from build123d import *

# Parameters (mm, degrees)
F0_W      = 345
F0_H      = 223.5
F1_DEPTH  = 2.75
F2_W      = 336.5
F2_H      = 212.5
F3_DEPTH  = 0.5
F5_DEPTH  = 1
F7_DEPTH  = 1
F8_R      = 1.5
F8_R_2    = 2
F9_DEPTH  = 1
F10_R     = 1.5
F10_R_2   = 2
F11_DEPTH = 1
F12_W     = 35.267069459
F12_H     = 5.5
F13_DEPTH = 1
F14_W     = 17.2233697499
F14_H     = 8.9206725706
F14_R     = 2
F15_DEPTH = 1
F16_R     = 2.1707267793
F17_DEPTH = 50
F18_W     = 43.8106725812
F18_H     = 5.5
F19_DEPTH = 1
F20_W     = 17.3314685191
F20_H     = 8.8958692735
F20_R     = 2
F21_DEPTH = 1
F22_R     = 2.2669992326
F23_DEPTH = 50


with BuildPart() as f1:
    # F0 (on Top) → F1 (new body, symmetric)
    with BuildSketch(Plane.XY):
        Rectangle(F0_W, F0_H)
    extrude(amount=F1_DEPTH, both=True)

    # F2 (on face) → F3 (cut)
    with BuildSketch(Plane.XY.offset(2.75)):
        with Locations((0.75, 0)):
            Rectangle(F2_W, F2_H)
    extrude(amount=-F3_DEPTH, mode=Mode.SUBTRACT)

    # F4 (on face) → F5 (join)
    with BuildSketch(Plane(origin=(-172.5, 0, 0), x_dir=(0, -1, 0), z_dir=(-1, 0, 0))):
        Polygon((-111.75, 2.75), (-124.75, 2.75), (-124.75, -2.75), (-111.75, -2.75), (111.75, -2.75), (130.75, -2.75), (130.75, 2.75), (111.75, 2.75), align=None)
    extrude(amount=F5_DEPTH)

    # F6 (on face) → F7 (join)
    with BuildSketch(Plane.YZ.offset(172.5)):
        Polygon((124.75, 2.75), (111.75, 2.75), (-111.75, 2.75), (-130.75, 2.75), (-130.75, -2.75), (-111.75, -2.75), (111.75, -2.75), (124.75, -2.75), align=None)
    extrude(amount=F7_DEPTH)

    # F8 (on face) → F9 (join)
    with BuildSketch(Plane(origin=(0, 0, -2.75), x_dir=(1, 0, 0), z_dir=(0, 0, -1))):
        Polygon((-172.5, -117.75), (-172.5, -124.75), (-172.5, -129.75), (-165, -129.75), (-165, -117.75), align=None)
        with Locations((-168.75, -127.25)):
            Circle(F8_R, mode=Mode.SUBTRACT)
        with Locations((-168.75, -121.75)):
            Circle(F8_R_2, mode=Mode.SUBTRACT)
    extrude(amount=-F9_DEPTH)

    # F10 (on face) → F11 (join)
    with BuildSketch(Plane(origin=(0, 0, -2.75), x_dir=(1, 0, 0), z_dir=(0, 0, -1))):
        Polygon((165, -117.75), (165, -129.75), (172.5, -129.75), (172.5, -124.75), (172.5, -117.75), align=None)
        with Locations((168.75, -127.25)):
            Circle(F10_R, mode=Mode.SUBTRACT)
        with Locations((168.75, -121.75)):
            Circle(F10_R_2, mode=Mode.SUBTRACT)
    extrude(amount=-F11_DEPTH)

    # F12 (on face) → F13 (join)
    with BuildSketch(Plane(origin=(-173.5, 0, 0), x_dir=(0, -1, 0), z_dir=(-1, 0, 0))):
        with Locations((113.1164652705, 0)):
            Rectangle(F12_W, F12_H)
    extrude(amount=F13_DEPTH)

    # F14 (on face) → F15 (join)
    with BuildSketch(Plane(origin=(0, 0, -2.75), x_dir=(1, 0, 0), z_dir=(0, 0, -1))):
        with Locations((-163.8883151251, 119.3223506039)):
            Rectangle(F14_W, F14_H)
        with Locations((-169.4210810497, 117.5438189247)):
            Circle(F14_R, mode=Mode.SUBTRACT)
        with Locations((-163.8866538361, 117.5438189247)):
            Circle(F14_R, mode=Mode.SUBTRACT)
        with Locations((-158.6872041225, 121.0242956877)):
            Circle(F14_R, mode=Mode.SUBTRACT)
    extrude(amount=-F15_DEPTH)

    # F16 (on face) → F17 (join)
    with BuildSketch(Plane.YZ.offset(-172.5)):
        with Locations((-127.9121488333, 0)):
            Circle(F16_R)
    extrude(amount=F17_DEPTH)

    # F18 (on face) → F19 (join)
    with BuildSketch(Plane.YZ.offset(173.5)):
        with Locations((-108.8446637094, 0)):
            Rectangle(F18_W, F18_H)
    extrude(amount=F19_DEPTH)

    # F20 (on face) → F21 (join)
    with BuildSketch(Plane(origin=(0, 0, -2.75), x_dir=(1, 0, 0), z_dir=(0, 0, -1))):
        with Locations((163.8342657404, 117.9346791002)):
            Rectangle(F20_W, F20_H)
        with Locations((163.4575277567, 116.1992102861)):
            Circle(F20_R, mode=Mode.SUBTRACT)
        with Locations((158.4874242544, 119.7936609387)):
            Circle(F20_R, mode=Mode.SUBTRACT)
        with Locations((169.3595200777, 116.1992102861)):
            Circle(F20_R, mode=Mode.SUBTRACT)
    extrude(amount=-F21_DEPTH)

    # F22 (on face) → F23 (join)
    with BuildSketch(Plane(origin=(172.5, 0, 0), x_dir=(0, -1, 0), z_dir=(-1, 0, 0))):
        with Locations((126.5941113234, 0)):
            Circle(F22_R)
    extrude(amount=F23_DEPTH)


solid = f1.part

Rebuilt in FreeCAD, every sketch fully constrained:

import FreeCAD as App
import Part
import Sketcher
Q = App.Units.Quantity


def add_polygon(sketch, points):
    """Adds a closed chain of lines whose ends are joined by coincident constraints."""
    first, n = sketch.GeometryCount, len(points)
    for a, b in zip(points, points[1:] + points[:1]):
        sketch.addGeometry(Part.LineSegment(App.Vector(*a, 0), App.Vector(*b, 0)), False)
    for i in range(n):
        sketch.addConstraint(Sketcher.Constraint("Coincident", first + i, 2, first + (i + 1) % n, 1))

doc = App.newDocument("Part")
body = doc.addObject("PartDesign::Body", "Body")

sketch1 = body.newObject("Sketcher::SketchObject", "Sketch")
sketch1.AttachmentSupport = (doc.getObject("XY_Plane"), [""])
sketch1.MapMode = "FlatFace"
add_polygon(sketch1, [(-172, 112), (-172, -112), (172, -112), (172, 112)])
sketch1.addConstraint(Sketcher.Constraint("Vertical", 0))
sketch1.addConstraint(Sketcher.Constraint("Horizontal", 1))
sketch1.addConstraint(Sketcher.Constraint("Vertical", 2))
sketch1.addConstraint(Sketcher.Constraint("Horizontal", 3))
sketch1.addConstraint(Sketcher.Constraint("Symmetric", 0, 2, 2, 2, -1, 1))
sketch1.addConstraint(Sketcher.Constraint("DistanceX", 1, 1, 1, 2, Q("345 mm")))
sketch1.addConstraint(Sketcher.Constraint("DistanceY", 0, 2, 0, 1, Q("223.5 mm")))
pad1 = body.newObject("PartDesign::Pad", "Pad")
pad1.Profile = sketch1
pad1.Length = 5.5
pad1.Midplane = True

sketch2 = body.newObject("Sketcher::SketchObject", "Sketch001")
sketch2.AttachmentSupport = (doc.getObject("XY_Plane"), [""])
sketch2.MapMode = "FlatFace"
sketch2.AttachmentOffset = App.Placement(App.Vector(0, 0, 2.75), App.Rotation())
add_polygon(sketch2, [(-168, 106), (-168, -106), (169, -106), (169, 106)])
sketch2.addConstraint(Sketcher.Constraint("Vertical", 0))
sketch2.addConstraint(Sketcher.Constraint("Horizontal", 1))
sketch2.addConstraint(Sketcher.Constraint("Vertical", 2))
sketch2.addConstraint(Sketcher.Constraint("Horizontal", 3))
sketch2.addConstraint(Sketcher.Constraint("DistanceX", 1, 1, 1, 2, Q("336.5 mm")))
sketch2.addConstraint(Sketcher.Constraint("DistanceY", 0, 2, 0, 1, Q("212.5 mm")))
sketch2.addConstraint(Sketcher.Constraint("DistanceX", -1, 1, 1, 2, Q("169 mm")))
sketch2.addConstraint(Sketcher.Constraint("DistanceY", 0, 2, -1, 1, Q("106.25 mm")))
pocket1 = body.newObject("PartDesign::Pocket", "Pocket")
pocket1.Profile = sketch2
pocket1.Length = 0.5

sketch3 = body.newObject("Sketcher::SketchObject", "Sketch002")
sketch3.AttachmentSupport = (doc.getObject("YZ_Plane"), [""])
sketch3.MapMode = "FlatFace"
sketch3.AttachmentOffset = App.Placement(App.Vector(0, 0, -172.5), App.Rotation())
add_polygon(sketch3, [(125, 3), (125, -3), (-131, -3), (-131, 3)])
sketch3.addConstraint(Sketcher.Constraint("Vertical", 0))
sketch3.addConstraint(Sketcher.Constraint("Horizontal", 1))
sketch3.addConstraint(Sketcher.Constraint("Vertical", 2))
sketch3.addConstraint(Sketcher.Constraint("Horizontal", 3))
sketch3.addConstraint(Sketcher.Constraint("DistanceX", 1, 2, 1, 1, Q("255.5 mm")))
sketch3.addConstraint(Sketcher.Constraint("DistanceY", 0, 2, 0, 1, Q("5.5 mm")))
sketch3.addConstraint(Sketcher.Constraint("DistanceX", -1, 1, 0, 2, Q("124.75 mm")))
sketch3.addConstraint(Sketcher.Constraint("DistanceY", 0, 2, -1, 1, Q("2.75 mm")))
pad2 = body.newObject("PartDesign::Pad", "Pad001")
pad2.Profile = sketch3
pad2.Length = 1
pad2.Reversed = True

sketch4 = body.newObject("Sketcher::SketchObject", "Sketch003")
sketch4.AttachmentSupport = (doc.getObject("YZ_Plane"), [""])
sketch4.MapMode = "FlatFace"
sketch4.AttachmentOffset = App.Placement(App.Vector(0, 0, 172.5), App.Rotation())
add_polygon(sketch4, [(125, 3), (-131, 3), (-131, -3), (125, -3)])
sketch4.addConstraint(Sketcher.Constraint("Horizontal", 0))
sketch4.addConstraint(Sketcher.Constraint("Vertical", 1))
sketch4.addConstraint(Sketcher.Constraint("Horizontal", 2))
sketch4.addConstraint(Sketcher.Constraint("Vertical", 3))
sketch4.addConstraint(Sketcher.Constraint("DistanceX", 0, 2, 0, 1, Q("255.5 mm")))
sketch4.addConstraint(Sketcher.Constraint("DistanceY", 1, 2, 1, 1, Q("5.5 mm")))
sketch4.addConstraint(Sketcher.Constraint("DistanceX", 0, 2, -1, 1, Q("130.75 mm")))
sketch4.addConstraint(Sketcher.Constraint("DistanceY", -1, 1, 0, 2, Q("2.75 mm")))
pad3 = body.newObject("PartDesign::Pad", "Pad002")
pad3.Profile = sketch4
pad3.Length = 1

sketch5 = body.newObject("Sketcher::SketchObject", "Sketch004")
sketch5.AttachmentSupport = (doc.getObject("XY_Plane"), [""])
sketch5.MapMode = "FlatFace"
sketch5.AttachmentOffset = App.Placement(App.Vector(0, 0, -2.75), App.Rotation())
add_polygon(sketch5, [(-172.5, 117.8), (-172.5, 129.8), (-165, 129.8), (-165, 117.8)])
sketch5.addGeometry(Part.Circle(App.Vector(-168.8, 127.2, 0), App.Vector(0, 0, 1), 1.5), False)
sketch5.addGeometry(Part.Circle(App.Vector(-168.8, 121.8, 0), App.Vector(0, 0, 1), 2), False)
sketch5.addConstraint(Sketcher.Constraint("Vertical", 0))
sketch5.addConstraint(Sketcher.Constraint("Horizontal", 1))
sketch5.addConstraint(Sketcher.Constraint("Vertical", 2))
sketch5.addConstraint(Sketcher.Constraint("Horizontal", 3))
sketch5.addConstraint(Sketcher.Constraint("Vertical", 4, 3, 5, 3))
sketch5.addConstraint(Sketcher.Constraint("Diameter", 4, Q("3 mm")))
sketch5.addConstraint(Sketcher.Constraint("Diameter", 5, Q("4 mm")))
sketch5.addConstraint(Sketcher.Constraint("DistanceY", 0, 1, 0, 2, Q("12 mm")))
sketch5.addConstraint(Sketcher.Constraint("DistanceX", 1, 1, 1, 2, Q("7.5 mm")))
sketch5.addConstraint(Sketcher.Constraint("DistanceX", 1, 2, -1, 1, Q("165 mm")))
sketch5.addConstraint(Sketcher.Constraint("DistanceY", 5, 3, 0, 2, Q("8 mm")))
sketch5.addConstraint(Sketcher.Constraint("DistanceY", 5, 3, 4, 3, Q("5.5 mm")))
sketch5.addConstraint(Sketcher.Constraint("DistanceX", 4, 3, -1, 1, Q("168.75 mm")))
sketch5.addConstraint(Sketcher.Constraint("DistanceY", -1, 1, 4, 3, Q("127.25 mm")))
pad4 = body.newObject("PartDesign::Pad", "Pad003")
pad4.Profile = sketch5
pad4.Length = 1

sketch6 = body.newObject("Sketcher::SketchObject", "Sketch005")
sketch6.AttachmentSupport = (doc.getObject("XY_Plane"), [""])
sketch6.MapMode = "FlatFace"
sketch6.AttachmentOffset = App.Placement(App.Vector(0, 0, -2.75), App.Rotation())
add_polygon(sketch6, [(165, 117.8), (165, 129.8), (172.5, 129.8), (172.5, 117.8)])
sketch6.addGeometry(Part.Circle(App.Vector(168.8, 127.2, 0), App.Vector(0, 0, 1), 1.5), False)
sketch6.addGeometry(Part.Circle(App.Vector(168.8, 121.8, 0), App.Vector(0, 0, 1), 2), False)
sketch6.addConstraint(Sketcher.Constraint("Vertical", 0))
sketch6.addConstraint(Sketcher.Constraint("Horizontal", 1))
sketch6.addConstraint(Sketcher.Constraint("Vertical", 2))
sketch6.addConstraint(Sketcher.Constraint("Horizontal", 3))
sketch6.addConstraint(Sketcher.Constraint("Vertical", 4, 3, 5, 3))
sketch6.addConstraint(Sketcher.Constraint("Diameter", 4, Q("3 mm")))
sketch6.addConstraint(Sketcher.Constraint("Diameter", 5, Q("4 mm")))
sketch6.addConstraint(Sketcher.Constraint("DistanceY", 0, 1, 0, 2, Q("12 mm")))
sketch6.addConstraint(Sketcher.Constraint("DistanceX", 1, 1, 1, 2, Q("7.5 mm")))
sketch6.addConstraint(Sketcher.Constraint("DistanceX", -1, 1, 0, 2, Q("165 mm")))
sketch6.addConstraint(Sketcher.Constraint("DistanceY", 5, 3, 0, 2, Q("8 mm")))
sketch6.addConstraint(Sketcher.Constraint("DistanceY", 5, 3, 4, 3, Q("5.5 mm")))
sketch6.addConstraint(Sketcher.Constraint("DistanceX", -1, 1, 4, 3, Q("168.75 mm")))
sketch6.addConstraint(Sketcher.Constraint("DistanceY", -1, 1, 4, 3, Q("127.25 mm")))
pad5 = body.newObject("PartDesign::Pad", "Pad004")
pad5.Profile = sketch6
pad5.Length = 1

sketch7 = body.newObject("Sketcher::SketchObject", "Sketch006")
sketch7.AttachmentSupport = (doc.getObject("YZ_Plane"), [""])
sketch7.MapMode = "FlatFace"
sketch7.AttachmentOffset = App.Placement(App.Vector(0, 0, -173.5), App.Rotation())
add_polygon(sketch7, [(-95, 3), (-95, -3), (-131, -3), (-131, 3)])
sketch7.addConstraint(Sketcher.Constraint("Vertical", 0))
sketch7.addConstraint(Sketcher.Constraint("Horizontal", 1))
sketch7.addConstraint(Sketcher.Constraint("Vertical", 2))
sketch7.addConstraint(Sketcher.Constraint("Horizontal", 3))
sketch7.addConstraint(Sketcher.Constraint("DistanceY", 0, 2, 0, 1, Q("5.5 mm")))
sketch7.addConstraint(Sketcher.Constraint("DistanceY", 0, 2, -1, 1, Q("2.75 mm")))
sketch7.addConstraint(Sketcher.Constraint("DistanceX", 1, 2, -1, 1, Q("130.75 mm")))
sketch7.addConstraint(Sketcher.Constraint("DistanceX", 1, 2, 1, 1, Q("35.267069 mm")))
pad6 = body.newObject("PartDesign::Pad", "Pad005")
pad6.Profile = sketch7
pad6.Length = 1
pad6.Reversed = True

sketch8 = body.newObject("Sketcher::SketchObject", "Sketch007")
sketch8.AttachmentSupport = (doc.getObject("XY_Plane"), [""])
sketch8.MapMode = "FlatFace"
sketch8.AttachmentOffset = App.Placement(App.Vector(0, 0, -2.75), App.Rotation())
add_polygon(sketch8, [(-172.5, -123.8), (-172.5, -114.9), (-155.3, -114.9), (-155.3, -123.8)])
sketch8.addGeometry(Part.Circle(App.Vector(-169.4, -117.5, 0), App.Vector(0, 0, 1), 2), False)
sketch8.addGeometry(Part.Circle(App.Vector(-163.9, -117.5, 0), App.Vector(0, 0, 1), 2), False)
sketch8.addGeometry(Part.Circle(App.Vector(-158.7, -121, 0), App.Vector(0, 0, 1), 2), False)
sketch8.addConstraint(Sketcher.Constraint("Vertical", 0))
sketch8.addConstraint(Sketcher.Constraint("Horizontal", 1))
sketch8.addConstraint(Sketcher.Constraint("Vertical", 2))
sketch8.addConstraint(Sketcher.Constraint("Horizontal", 3))
sketch8.addConstraint(Sketcher.Constraint("Equal", 4, 5))
sketch8.addConstraint(Sketcher.Constraint("Equal", 5, 6))
sketch8.addConstraint(Sketcher.Constraint("Horizontal", 4, 3, 5, 3))
sketch8.addConstraint(Sketcher.Constraint("Diameter", 4, Q("4 mm")))
sketch8.addConstraint(Sketcher.Constraint("DistanceX", 0, 2, -1, 1, Q("172.5 mm")))
sketch8.addConstraint(Sketcher.Constraint("DistanceX", 1, 1, 1, 2, Q("17.22337 mm")))
sketch8.addConstraint(Sketcher.Constraint("DistanceY", 0, 1, 0, 2, Q("8.920673 mm")))
sketch8.addConstraint(Sketcher.Constraint("DistanceX", 4, 3, -1, 1, Q("169.421081 mm")))
sketch8.addConstraint(Sketcher.Constraint("DistanceY", 4, 3, -1, 1, Q("117.543819 mm")))
sketch8.addConstraint(Sketcher.Constraint("DistanceX", 5, 3, 6, 3, Q("5.19945 mm")))
sketch8.addConstraint(Sketcher.Constraint("DistanceY", 6, 3, 0, 2, Q("6.162281 mm")))
sketch8.addConstraint(Sketcher.Constraint("DistanceX", 5, 3, -1, 1, Q("163.886654 mm")))
sketch8.addConstraint(Sketcher.Constraint("DistanceY", 6, 3, -1, 1, Q("121.024296 mm")))
pad7 = body.newObject("PartDesign::Pad", "Pad006")
pad7.Profile = sketch8
pad7.Length = 1

sketch9 = body.newObject("Sketcher::SketchObject", "Sketch008")
sketch9.AttachmentSupport = (doc.getObject("YZ_Plane"), [""])
sketch9.MapMode = "FlatFace"
sketch9.AttachmentOffset = App.Placement(App.Vector(0, 0, -172.5), App.Rotation())
sketch9.addGeometry(Part.Circle(App.Vector(-127.9, 0, 0), App.Vector(0, 0, 1), 2.2), False)
sketch9.addConstraint(Sketcher.Constraint("PointOnObject", 0, 3, -1))
sketch9.addConstraint(Sketcher.Constraint("Diameter", 0, Q("4.341454 mm")))
sketch9.addConstraint(Sketcher.Constraint("DistanceX", 0, 3, -1, 1, Q("127.912149 mm")))
pad8 = body.newObject("PartDesign::Pad", "Pad007")
pad8.Profile = sketch9
pad8.Length = 50

sketch10 = body.newObject("Sketcher::SketchObject", "Sketch009")
sketch10.AttachmentSupport = (doc.getObject("YZ_Plane"), [""])
sketch10.MapMode = "FlatFace"
sketch10.AttachmentOffset = App.Placement(App.Vector(0, 0, 173.5), App.Rotation())
add_polygon(sketch10, [(-131, 3), (-131, -3), (-87, -3), (-87, 3)])
sketch10.addConstraint(Sketcher.Constraint("Vertical", 0))
sketch10.addConstraint(Sketcher.Constraint("Horizontal", 1))
sketch10.addConstraint(Sketcher.Constraint("Vertical", 2))
sketch10.addConstraint(Sketcher.Constraint("Horizontal", 3))
sketch10.addConstraint(Sketcher.Constraint("DistanceY", 0, 2, 0, 1, Q("5.5 mm")))
sketch10.addConstraint(Sketcher.Constraint("DistanceX", 0, 2, -1, 1, Q("130.75 mm")))
sketch10.addConstraint(Sketcher.Constraint("DistanceY", 0, 2, -1, 1, Q("2.75 mm")))
sketch10.addConstraint(Sketcher.Constraint("DistanceX", 1, 1, 1, 2, Q("43.810673 mm")))
pad9 = body.newObject("PartDesign::Pad", "Pad008")
pad9.Profile = sketch10
pad9.Length = 1

sketch11 = body.newObject("Sketcher::SketchObject", "Sketch010")
sketch11.AttachmentSupport = (doc.getObject("XY_Plane"), [""])
sketch11.MapMode = "FlatFace"
sketch11.AttachmentOffset = App.Placement(App.Vector(0, 0, -2.75), App.Rotation())
add_polygon(sketch11, [(155.2, -122.4), (155.2, -113.5), (172.5, -113.5), (172.5, -122.4)])
sketch11.addGeometry(Part.Circle(App.Vector(163.5, -116.2, 0), App.Vector(0, 0, 1), 2), False)
sketch11.addGeometry(Part.Circle(App.Vector(169.4, -116.2, 0), App.Vector(0, 0, 1), 2), False)
sketch11.addGeometry(Part.Circle(App.Vector(158.5, -119.8, 0), App.Vector(0, 0, 1), 2), False)
sketch11.addConstraint(Sketcher.Constraint("Vertical", 0))
sketch11.addConstraint(Sketcher.Constraint("Horizontal", 1))
sketch11.addConstraint(Sketcher.Constraint("Vertical", 2))
sketch11.addConstraint(Sketcher.Constraint("Horizontal", 3))
sketch11.addConstraint(Sketcher.Constraint("Equal", 4, 5))
sketch11.addConstraint(Sketcher.Constraint("Equal", 5, 6))
sketch11.addConstraint(Sketcher.Constraint("Horizontal", 4, 3, 5, 3))
sketch11.addConstraint(Sketcher.Constraint("Diameter", 4, Q("4 mm")))
sketch11.addConstraint(Sketcher.Constraint("DistanceX", -1, 1, 1, 2, Q("172.5 mm")))
sketch11.addConstraint(Sketcher.Constraint("DistanceX", 1, 1, 1, 2, Q("17.331469 mm")))
sketch11.addConstraint(Sketcher.Constraint("DistanceY", 0, 1, 0, 2, Q("8.895869 mm")))
sketch11.addConstraint(Sketcher.Constraint("DistanceY", 4, 3, -1, 1, Q("116.19921 mm")))
sketch11.addConstraint(Sketcher.Constraint("DistanceX", -1, 1, 5, 3, Q("169.35952 mm")))
sketch11.addConstraint(Sketcher.Constraint("DistanceY", 6, 3, -1, 1, Q("119.793661 mm")))
sketch11.addConstraint(Sketcher.Constraint("DistanceX", -1, 1, 4, 3, Q("163.457528 mm")))
sketch11.addConstraint(Sketcher.Constraint("DistanceX", -1, 1, 6, 3, Q("158.487424 mm")))
sketch11.addConstraint(Sketcher.Constraint("DistanceY", 0, 2, -1, 1, Q("113.486744 mm")))
pad10 = body.newObject("PartDesign::Pad", "Pad009")
pad10.Profile = sketch11
pad10.Length = 1

sketch12 = body.newObject("Sketcher::SketchObject", "Sketch011")
sketch12.AttachmentSupport = (doc.getObject("YZ_Plane"), [""])
sketch12.MapMode = "FlatFace"
sketch12.AttachmentOffset = App.Placement(App.Vector(0, 0, 172.5), App.Rotation())
sketch12.addGeometry(Part.Circle(App.Vector(-126.6, 0, 0), App.Vector(0, 0, 1), 2.3), False)
sketch12.addConstraint(Sketcher.Constraint("PointOnObject", 0, 3, -1))
sketch12.addConstraint(Sketcher.Constraint("Diameter", 0, Q("4.533998 mm")))
sketch12.addConstraint(Sketcher.Constraint("DistanceX", 0, 3, -1, 1, Q("126.594111 mm")))
pad11 = body.newObject("PartDesign::Pad", "Pad010")
pad11.Profile = sketch12
pad11.Length = 50
pad11.Reversed = True

doc.recompute()
